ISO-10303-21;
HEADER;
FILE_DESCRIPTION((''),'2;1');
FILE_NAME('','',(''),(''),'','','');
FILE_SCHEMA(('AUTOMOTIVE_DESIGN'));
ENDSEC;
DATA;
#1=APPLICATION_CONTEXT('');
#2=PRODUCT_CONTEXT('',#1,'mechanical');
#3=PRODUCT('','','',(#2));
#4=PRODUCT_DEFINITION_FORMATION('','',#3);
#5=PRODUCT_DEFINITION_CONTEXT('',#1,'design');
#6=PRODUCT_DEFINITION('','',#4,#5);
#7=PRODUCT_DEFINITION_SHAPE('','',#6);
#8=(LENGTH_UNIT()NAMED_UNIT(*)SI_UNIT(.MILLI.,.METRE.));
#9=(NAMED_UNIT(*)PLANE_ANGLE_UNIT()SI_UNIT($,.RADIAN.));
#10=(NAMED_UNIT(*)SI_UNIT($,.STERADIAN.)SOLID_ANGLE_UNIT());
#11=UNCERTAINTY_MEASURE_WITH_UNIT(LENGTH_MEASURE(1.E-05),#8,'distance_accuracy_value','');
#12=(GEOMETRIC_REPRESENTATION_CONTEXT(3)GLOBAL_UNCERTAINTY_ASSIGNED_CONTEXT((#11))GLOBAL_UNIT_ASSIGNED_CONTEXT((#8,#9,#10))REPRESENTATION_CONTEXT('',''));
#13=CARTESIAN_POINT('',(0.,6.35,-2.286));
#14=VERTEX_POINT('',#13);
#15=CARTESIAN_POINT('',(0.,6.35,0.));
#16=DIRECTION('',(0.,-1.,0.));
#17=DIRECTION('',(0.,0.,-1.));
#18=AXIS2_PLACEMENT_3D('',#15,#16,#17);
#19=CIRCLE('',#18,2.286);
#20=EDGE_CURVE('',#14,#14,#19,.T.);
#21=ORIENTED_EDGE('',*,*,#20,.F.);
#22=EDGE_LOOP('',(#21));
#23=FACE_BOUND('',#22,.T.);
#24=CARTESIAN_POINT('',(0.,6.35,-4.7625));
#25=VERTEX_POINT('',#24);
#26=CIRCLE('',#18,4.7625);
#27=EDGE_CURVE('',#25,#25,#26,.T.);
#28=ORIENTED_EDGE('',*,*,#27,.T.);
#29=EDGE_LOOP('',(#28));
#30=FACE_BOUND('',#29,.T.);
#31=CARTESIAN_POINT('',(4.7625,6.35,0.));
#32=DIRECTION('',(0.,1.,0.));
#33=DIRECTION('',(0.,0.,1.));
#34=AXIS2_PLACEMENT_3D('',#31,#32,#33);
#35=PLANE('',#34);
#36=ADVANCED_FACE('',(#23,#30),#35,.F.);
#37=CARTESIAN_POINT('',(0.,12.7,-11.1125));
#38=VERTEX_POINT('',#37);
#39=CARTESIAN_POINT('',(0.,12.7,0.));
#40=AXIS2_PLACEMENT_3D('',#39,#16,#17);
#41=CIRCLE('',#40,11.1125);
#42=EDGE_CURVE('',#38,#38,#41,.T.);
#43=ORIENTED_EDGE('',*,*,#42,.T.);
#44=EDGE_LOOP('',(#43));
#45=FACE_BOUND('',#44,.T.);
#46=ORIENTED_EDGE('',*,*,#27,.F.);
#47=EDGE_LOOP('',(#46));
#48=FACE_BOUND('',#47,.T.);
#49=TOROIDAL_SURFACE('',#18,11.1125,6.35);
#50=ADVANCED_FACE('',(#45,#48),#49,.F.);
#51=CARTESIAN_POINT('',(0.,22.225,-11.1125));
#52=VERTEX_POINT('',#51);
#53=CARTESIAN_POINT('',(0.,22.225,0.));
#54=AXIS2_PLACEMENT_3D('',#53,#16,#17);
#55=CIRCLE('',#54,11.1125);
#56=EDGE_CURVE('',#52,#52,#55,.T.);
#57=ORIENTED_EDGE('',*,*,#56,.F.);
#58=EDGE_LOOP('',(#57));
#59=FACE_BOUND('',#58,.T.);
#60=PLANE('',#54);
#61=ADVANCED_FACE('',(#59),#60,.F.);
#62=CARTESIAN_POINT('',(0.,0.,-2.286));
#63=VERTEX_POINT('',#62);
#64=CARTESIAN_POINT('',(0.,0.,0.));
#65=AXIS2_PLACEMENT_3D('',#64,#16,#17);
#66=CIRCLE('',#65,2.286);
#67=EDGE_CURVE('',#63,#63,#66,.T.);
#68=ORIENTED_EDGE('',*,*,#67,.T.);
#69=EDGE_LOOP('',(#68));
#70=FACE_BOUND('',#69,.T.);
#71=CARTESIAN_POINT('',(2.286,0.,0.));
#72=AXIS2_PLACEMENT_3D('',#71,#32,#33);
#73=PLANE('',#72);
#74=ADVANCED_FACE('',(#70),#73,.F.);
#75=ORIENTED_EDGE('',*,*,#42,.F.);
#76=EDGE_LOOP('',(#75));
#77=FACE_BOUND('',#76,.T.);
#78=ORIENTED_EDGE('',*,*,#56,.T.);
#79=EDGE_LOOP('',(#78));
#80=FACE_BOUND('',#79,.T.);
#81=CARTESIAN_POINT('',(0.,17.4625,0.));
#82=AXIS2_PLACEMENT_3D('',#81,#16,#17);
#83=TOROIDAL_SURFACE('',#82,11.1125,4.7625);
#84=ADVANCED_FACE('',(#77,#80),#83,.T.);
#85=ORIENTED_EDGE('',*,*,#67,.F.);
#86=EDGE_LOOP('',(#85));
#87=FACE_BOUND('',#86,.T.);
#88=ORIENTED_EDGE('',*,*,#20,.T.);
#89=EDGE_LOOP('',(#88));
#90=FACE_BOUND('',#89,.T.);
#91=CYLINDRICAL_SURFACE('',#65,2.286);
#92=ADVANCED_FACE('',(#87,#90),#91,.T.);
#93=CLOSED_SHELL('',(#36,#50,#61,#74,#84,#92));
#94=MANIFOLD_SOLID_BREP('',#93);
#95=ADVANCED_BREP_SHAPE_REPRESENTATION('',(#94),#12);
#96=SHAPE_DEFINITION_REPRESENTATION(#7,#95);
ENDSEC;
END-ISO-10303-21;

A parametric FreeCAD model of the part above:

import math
import FreeCAD as App
import Part
import Sketcher
Q = App.Units.Quantity

doc = App.newDocument("Part")
body = doc.addObject("PartDesign::Body", "Body")

sketch1 = body.newObject("Sketcher::SketchObject", "Sketch")
sketch1.AttachmentSupport = (doc.getObject("XY_Plane"), [""])
sketch1.MapMode = "FlatFace"
sketch1.addGeometry([
    Part.LineSegment(App.Vector(0, 22.225, 0), App.Vector(0, 0, 0)),
    Part.LineSegment(App.Vector(0, 0, 0), App.Vector(2.286, 0, 0)),
    Part.LineSegment(App.Vector(2.286, 0, 0), App.Vector(2.286, 6.35, 0)),
    Part.LineSegment(App.Vector(2.286, 6.35, 0), App.Vector(4.7625, 6.35, 0)),
    Part.ArcOfCircle(Part.Circle(App.Vector(11.1125, 6.35, 0), App.Vector(0, 0, 1), 6.35), math.radians(90), math.radians(180)),
    Part.ArcOfCircle(Part.Circle(App.Vector(11.1125, 17.4625, 0), App.Vector(0, 0, 1), 4.7625), math.radians(-90), math.radians(90)),
    Part.LineSegment(App.Vector(11.1125, 22.225, 0), App.Vector(0, 22.225, 0)),
], False)
sketch1.addConstraint([
    Sketcher.Constraint("Coincident", 0, 2, 1, 1),
    Sketcher.Constraint("Coincident", 1, 2, 2, 1),
    Sketcher.Constraint("Coincident", 2, 2, 3, 1),
    Sketcher.Constraint("Coincident", 3, 2, 4, 2),
    Sketcher.Constraint("Tangent", 4, 1, 5, 1),
    Sketcher.Constraint("Tangent", 5, 2, 6, 1),
    Sketcher.Constraint("Coincident", 6, 2, 0, 1),
    Sketcher.Constraint("Vertical", 0),
    Sketcher.Constraint("Horizontal", 1),
    Sketcher.Constraint("Vertical", 2),
    Sketcher.Constraint("Horizontal", 3),
    Sketcher.Constraint("Horizontal", 6),
    Sketcher.Constraint("Coincident", 0, 2, -1, 1),
    Sketcher.Constraint("Horizontal", 4, 3, 2, 2),
    Sketcher.Constraint("Vertical", 4, 3, 5, 3),
    Sketcher.Constraint("Radius", 4, Q("0.25 in")),
    Sketcher.Constraint("Radius", 5, Q("0.1875 in")),
    Sketcher.Constraint("DistanceX", 1, 1, 1, 2, Q("0.09 in")),
    Sketcher.Constraint("DistanceY", 2, 1, 2, 2, Q("0.25 in")),
    Sketcher.Constraint("DistanceX", 6, 2, 6, 1, Q("0.4375 in")),
])
revolution = body.newObject("PartDesign::Revolution", "Revolution")
revolution.Profile = sketch1
revolution.ReferenceAxis = (sketch1, ["V_Axis"])
revolution.Angle = 360

doc.recompute()
